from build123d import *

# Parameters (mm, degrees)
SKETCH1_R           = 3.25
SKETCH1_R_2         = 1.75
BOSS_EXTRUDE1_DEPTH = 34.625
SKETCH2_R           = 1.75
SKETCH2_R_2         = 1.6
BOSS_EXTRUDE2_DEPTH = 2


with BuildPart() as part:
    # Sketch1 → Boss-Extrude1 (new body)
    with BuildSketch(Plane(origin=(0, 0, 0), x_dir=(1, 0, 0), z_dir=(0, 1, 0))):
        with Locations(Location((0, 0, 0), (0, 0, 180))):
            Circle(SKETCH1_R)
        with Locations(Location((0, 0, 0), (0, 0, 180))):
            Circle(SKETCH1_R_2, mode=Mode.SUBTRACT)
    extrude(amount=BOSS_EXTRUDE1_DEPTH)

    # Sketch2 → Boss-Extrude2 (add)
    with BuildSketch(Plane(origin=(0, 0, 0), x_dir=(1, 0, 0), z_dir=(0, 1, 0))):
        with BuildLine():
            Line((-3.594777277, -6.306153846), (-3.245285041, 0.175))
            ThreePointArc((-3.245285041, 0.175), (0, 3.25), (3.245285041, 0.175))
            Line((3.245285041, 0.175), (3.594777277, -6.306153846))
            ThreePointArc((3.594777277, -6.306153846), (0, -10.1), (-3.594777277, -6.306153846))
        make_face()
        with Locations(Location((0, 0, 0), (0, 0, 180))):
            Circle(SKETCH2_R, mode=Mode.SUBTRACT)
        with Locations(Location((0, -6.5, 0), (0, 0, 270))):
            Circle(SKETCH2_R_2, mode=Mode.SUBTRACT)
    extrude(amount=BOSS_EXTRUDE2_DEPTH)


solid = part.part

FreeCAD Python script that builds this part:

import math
import FreeCAD as App
import Part
import Sketcher
from FreeCAD import Vector
Q = App.Units.Quantity

doc = App.newDocument("Part")
body = doc.addObject("PartDesign::Body", "Body")

sketch1 = body.newObject("Sketcher::SketchObject", "Sketch")
sketch1.AttachmentSupport = (doc.getObject("XZ_Plane"), [""])
sketch1.MapMode = "FlatFace"
sketch1.addGeometry([
    Part.Circle(Vector(0, 0, 0), Vector(0, 0, 1), 3.2),
    Part.Circle(Vector(0, 0, 0), Vector(0, 0, 1), 1.8),
], False)
sketch1.addConstraint([
    Sketcher.Constraint("Coincident", 0, 3, -1, 1),
    Sketcher.Constraint("Coincident", 1, 3, -1, 1),
    Sketcher.Constraint("Diameter", 0, Q("6.5 mm")),
    Sketcher.Constraint("Diameter", 1, Q("3.5 mm")),
])
pad1 = body.newObject("PartDesign::Pad", "Pad")
pad1.Profile = sketch1
pad1.Length = 34.625
pad1.Reversed = True

sketch2 = body.newObject("Sketcher::SketchObject", "Sketch001")
sketch2.AttachmentSupport = (doc.getObject("XZ_Plane"), [""])
sketch2.MapMode = "FlatFace"
sketch2.addGeometry([
    Part.LineSegment(Vector(-3.2, -0.2, 0), Vector(-3.6, 6.3, 0)),
    Part.ArcOfCircle(Part.Circle(Vector(0, 6.5, 0), Vector(0, 0, 1), 3.6), math.radians(-3), math.radians(183)),
    Part.LineSegment(Vector(3.6, 6.3, 0), Vector(3.2, -0.2, 0)),
    Part.ArcOfCircle(Part.Circle(Vector(0, 0, 0), Vector(0, 0, 1), 3.2), math.radians(-177), math.radians(-3)),
    Part.Circle(Vector(0, 6.5, 0), Vector(0, 0, 1), 1.6),
    Part.Circle(Vector(0, 0, 0), Vector(0, 0, 1), 1.8),
], False)
sketch2.addConstraint([
    Sketcher.Constraint("Tangent", 0, 2, 1, 2),
    Sketcher.Constraint("Tangent", 1, 1, 2, 1),
    Sketcher.Constraint("Tangent", 2, 2, 3, 2),
    Sketcher.Constraint("Tangent", 3, 1, 0, 1),
    Sketcher.Constraint("Coincident", 3, 3, -1, 1),
    Sketcher.Constraint("Coincident", 5, 3, -1, 1),
    Sketcher.Constraint("Coincident", 4, 3, 1, 3),
    Sketcher.Constraint("PointOnObject", 1, 3, -2),
    Sketcher.Constraint("Diameter", 4, Q("3.2 mm")),
    Sketcher.Constraint("Diameter", 5, Q("3.5 mm")),
    Sketcher.Constraint("Radius", 1, Q("3.6 mm")),
    Sketcher.Constraint("Radius", 3, Q("3.25 mm")),
    Sketcher.Constraint("DistanceY", -1, 1, 1, 3, Q("6.5 mm")),
])
pad2 = body.newObject("PartDesign::Pad", "Pad001")
pad2.Profile = sketch2
pad2.Length = 2
pad2.Reversed = True

doc.recompute()
